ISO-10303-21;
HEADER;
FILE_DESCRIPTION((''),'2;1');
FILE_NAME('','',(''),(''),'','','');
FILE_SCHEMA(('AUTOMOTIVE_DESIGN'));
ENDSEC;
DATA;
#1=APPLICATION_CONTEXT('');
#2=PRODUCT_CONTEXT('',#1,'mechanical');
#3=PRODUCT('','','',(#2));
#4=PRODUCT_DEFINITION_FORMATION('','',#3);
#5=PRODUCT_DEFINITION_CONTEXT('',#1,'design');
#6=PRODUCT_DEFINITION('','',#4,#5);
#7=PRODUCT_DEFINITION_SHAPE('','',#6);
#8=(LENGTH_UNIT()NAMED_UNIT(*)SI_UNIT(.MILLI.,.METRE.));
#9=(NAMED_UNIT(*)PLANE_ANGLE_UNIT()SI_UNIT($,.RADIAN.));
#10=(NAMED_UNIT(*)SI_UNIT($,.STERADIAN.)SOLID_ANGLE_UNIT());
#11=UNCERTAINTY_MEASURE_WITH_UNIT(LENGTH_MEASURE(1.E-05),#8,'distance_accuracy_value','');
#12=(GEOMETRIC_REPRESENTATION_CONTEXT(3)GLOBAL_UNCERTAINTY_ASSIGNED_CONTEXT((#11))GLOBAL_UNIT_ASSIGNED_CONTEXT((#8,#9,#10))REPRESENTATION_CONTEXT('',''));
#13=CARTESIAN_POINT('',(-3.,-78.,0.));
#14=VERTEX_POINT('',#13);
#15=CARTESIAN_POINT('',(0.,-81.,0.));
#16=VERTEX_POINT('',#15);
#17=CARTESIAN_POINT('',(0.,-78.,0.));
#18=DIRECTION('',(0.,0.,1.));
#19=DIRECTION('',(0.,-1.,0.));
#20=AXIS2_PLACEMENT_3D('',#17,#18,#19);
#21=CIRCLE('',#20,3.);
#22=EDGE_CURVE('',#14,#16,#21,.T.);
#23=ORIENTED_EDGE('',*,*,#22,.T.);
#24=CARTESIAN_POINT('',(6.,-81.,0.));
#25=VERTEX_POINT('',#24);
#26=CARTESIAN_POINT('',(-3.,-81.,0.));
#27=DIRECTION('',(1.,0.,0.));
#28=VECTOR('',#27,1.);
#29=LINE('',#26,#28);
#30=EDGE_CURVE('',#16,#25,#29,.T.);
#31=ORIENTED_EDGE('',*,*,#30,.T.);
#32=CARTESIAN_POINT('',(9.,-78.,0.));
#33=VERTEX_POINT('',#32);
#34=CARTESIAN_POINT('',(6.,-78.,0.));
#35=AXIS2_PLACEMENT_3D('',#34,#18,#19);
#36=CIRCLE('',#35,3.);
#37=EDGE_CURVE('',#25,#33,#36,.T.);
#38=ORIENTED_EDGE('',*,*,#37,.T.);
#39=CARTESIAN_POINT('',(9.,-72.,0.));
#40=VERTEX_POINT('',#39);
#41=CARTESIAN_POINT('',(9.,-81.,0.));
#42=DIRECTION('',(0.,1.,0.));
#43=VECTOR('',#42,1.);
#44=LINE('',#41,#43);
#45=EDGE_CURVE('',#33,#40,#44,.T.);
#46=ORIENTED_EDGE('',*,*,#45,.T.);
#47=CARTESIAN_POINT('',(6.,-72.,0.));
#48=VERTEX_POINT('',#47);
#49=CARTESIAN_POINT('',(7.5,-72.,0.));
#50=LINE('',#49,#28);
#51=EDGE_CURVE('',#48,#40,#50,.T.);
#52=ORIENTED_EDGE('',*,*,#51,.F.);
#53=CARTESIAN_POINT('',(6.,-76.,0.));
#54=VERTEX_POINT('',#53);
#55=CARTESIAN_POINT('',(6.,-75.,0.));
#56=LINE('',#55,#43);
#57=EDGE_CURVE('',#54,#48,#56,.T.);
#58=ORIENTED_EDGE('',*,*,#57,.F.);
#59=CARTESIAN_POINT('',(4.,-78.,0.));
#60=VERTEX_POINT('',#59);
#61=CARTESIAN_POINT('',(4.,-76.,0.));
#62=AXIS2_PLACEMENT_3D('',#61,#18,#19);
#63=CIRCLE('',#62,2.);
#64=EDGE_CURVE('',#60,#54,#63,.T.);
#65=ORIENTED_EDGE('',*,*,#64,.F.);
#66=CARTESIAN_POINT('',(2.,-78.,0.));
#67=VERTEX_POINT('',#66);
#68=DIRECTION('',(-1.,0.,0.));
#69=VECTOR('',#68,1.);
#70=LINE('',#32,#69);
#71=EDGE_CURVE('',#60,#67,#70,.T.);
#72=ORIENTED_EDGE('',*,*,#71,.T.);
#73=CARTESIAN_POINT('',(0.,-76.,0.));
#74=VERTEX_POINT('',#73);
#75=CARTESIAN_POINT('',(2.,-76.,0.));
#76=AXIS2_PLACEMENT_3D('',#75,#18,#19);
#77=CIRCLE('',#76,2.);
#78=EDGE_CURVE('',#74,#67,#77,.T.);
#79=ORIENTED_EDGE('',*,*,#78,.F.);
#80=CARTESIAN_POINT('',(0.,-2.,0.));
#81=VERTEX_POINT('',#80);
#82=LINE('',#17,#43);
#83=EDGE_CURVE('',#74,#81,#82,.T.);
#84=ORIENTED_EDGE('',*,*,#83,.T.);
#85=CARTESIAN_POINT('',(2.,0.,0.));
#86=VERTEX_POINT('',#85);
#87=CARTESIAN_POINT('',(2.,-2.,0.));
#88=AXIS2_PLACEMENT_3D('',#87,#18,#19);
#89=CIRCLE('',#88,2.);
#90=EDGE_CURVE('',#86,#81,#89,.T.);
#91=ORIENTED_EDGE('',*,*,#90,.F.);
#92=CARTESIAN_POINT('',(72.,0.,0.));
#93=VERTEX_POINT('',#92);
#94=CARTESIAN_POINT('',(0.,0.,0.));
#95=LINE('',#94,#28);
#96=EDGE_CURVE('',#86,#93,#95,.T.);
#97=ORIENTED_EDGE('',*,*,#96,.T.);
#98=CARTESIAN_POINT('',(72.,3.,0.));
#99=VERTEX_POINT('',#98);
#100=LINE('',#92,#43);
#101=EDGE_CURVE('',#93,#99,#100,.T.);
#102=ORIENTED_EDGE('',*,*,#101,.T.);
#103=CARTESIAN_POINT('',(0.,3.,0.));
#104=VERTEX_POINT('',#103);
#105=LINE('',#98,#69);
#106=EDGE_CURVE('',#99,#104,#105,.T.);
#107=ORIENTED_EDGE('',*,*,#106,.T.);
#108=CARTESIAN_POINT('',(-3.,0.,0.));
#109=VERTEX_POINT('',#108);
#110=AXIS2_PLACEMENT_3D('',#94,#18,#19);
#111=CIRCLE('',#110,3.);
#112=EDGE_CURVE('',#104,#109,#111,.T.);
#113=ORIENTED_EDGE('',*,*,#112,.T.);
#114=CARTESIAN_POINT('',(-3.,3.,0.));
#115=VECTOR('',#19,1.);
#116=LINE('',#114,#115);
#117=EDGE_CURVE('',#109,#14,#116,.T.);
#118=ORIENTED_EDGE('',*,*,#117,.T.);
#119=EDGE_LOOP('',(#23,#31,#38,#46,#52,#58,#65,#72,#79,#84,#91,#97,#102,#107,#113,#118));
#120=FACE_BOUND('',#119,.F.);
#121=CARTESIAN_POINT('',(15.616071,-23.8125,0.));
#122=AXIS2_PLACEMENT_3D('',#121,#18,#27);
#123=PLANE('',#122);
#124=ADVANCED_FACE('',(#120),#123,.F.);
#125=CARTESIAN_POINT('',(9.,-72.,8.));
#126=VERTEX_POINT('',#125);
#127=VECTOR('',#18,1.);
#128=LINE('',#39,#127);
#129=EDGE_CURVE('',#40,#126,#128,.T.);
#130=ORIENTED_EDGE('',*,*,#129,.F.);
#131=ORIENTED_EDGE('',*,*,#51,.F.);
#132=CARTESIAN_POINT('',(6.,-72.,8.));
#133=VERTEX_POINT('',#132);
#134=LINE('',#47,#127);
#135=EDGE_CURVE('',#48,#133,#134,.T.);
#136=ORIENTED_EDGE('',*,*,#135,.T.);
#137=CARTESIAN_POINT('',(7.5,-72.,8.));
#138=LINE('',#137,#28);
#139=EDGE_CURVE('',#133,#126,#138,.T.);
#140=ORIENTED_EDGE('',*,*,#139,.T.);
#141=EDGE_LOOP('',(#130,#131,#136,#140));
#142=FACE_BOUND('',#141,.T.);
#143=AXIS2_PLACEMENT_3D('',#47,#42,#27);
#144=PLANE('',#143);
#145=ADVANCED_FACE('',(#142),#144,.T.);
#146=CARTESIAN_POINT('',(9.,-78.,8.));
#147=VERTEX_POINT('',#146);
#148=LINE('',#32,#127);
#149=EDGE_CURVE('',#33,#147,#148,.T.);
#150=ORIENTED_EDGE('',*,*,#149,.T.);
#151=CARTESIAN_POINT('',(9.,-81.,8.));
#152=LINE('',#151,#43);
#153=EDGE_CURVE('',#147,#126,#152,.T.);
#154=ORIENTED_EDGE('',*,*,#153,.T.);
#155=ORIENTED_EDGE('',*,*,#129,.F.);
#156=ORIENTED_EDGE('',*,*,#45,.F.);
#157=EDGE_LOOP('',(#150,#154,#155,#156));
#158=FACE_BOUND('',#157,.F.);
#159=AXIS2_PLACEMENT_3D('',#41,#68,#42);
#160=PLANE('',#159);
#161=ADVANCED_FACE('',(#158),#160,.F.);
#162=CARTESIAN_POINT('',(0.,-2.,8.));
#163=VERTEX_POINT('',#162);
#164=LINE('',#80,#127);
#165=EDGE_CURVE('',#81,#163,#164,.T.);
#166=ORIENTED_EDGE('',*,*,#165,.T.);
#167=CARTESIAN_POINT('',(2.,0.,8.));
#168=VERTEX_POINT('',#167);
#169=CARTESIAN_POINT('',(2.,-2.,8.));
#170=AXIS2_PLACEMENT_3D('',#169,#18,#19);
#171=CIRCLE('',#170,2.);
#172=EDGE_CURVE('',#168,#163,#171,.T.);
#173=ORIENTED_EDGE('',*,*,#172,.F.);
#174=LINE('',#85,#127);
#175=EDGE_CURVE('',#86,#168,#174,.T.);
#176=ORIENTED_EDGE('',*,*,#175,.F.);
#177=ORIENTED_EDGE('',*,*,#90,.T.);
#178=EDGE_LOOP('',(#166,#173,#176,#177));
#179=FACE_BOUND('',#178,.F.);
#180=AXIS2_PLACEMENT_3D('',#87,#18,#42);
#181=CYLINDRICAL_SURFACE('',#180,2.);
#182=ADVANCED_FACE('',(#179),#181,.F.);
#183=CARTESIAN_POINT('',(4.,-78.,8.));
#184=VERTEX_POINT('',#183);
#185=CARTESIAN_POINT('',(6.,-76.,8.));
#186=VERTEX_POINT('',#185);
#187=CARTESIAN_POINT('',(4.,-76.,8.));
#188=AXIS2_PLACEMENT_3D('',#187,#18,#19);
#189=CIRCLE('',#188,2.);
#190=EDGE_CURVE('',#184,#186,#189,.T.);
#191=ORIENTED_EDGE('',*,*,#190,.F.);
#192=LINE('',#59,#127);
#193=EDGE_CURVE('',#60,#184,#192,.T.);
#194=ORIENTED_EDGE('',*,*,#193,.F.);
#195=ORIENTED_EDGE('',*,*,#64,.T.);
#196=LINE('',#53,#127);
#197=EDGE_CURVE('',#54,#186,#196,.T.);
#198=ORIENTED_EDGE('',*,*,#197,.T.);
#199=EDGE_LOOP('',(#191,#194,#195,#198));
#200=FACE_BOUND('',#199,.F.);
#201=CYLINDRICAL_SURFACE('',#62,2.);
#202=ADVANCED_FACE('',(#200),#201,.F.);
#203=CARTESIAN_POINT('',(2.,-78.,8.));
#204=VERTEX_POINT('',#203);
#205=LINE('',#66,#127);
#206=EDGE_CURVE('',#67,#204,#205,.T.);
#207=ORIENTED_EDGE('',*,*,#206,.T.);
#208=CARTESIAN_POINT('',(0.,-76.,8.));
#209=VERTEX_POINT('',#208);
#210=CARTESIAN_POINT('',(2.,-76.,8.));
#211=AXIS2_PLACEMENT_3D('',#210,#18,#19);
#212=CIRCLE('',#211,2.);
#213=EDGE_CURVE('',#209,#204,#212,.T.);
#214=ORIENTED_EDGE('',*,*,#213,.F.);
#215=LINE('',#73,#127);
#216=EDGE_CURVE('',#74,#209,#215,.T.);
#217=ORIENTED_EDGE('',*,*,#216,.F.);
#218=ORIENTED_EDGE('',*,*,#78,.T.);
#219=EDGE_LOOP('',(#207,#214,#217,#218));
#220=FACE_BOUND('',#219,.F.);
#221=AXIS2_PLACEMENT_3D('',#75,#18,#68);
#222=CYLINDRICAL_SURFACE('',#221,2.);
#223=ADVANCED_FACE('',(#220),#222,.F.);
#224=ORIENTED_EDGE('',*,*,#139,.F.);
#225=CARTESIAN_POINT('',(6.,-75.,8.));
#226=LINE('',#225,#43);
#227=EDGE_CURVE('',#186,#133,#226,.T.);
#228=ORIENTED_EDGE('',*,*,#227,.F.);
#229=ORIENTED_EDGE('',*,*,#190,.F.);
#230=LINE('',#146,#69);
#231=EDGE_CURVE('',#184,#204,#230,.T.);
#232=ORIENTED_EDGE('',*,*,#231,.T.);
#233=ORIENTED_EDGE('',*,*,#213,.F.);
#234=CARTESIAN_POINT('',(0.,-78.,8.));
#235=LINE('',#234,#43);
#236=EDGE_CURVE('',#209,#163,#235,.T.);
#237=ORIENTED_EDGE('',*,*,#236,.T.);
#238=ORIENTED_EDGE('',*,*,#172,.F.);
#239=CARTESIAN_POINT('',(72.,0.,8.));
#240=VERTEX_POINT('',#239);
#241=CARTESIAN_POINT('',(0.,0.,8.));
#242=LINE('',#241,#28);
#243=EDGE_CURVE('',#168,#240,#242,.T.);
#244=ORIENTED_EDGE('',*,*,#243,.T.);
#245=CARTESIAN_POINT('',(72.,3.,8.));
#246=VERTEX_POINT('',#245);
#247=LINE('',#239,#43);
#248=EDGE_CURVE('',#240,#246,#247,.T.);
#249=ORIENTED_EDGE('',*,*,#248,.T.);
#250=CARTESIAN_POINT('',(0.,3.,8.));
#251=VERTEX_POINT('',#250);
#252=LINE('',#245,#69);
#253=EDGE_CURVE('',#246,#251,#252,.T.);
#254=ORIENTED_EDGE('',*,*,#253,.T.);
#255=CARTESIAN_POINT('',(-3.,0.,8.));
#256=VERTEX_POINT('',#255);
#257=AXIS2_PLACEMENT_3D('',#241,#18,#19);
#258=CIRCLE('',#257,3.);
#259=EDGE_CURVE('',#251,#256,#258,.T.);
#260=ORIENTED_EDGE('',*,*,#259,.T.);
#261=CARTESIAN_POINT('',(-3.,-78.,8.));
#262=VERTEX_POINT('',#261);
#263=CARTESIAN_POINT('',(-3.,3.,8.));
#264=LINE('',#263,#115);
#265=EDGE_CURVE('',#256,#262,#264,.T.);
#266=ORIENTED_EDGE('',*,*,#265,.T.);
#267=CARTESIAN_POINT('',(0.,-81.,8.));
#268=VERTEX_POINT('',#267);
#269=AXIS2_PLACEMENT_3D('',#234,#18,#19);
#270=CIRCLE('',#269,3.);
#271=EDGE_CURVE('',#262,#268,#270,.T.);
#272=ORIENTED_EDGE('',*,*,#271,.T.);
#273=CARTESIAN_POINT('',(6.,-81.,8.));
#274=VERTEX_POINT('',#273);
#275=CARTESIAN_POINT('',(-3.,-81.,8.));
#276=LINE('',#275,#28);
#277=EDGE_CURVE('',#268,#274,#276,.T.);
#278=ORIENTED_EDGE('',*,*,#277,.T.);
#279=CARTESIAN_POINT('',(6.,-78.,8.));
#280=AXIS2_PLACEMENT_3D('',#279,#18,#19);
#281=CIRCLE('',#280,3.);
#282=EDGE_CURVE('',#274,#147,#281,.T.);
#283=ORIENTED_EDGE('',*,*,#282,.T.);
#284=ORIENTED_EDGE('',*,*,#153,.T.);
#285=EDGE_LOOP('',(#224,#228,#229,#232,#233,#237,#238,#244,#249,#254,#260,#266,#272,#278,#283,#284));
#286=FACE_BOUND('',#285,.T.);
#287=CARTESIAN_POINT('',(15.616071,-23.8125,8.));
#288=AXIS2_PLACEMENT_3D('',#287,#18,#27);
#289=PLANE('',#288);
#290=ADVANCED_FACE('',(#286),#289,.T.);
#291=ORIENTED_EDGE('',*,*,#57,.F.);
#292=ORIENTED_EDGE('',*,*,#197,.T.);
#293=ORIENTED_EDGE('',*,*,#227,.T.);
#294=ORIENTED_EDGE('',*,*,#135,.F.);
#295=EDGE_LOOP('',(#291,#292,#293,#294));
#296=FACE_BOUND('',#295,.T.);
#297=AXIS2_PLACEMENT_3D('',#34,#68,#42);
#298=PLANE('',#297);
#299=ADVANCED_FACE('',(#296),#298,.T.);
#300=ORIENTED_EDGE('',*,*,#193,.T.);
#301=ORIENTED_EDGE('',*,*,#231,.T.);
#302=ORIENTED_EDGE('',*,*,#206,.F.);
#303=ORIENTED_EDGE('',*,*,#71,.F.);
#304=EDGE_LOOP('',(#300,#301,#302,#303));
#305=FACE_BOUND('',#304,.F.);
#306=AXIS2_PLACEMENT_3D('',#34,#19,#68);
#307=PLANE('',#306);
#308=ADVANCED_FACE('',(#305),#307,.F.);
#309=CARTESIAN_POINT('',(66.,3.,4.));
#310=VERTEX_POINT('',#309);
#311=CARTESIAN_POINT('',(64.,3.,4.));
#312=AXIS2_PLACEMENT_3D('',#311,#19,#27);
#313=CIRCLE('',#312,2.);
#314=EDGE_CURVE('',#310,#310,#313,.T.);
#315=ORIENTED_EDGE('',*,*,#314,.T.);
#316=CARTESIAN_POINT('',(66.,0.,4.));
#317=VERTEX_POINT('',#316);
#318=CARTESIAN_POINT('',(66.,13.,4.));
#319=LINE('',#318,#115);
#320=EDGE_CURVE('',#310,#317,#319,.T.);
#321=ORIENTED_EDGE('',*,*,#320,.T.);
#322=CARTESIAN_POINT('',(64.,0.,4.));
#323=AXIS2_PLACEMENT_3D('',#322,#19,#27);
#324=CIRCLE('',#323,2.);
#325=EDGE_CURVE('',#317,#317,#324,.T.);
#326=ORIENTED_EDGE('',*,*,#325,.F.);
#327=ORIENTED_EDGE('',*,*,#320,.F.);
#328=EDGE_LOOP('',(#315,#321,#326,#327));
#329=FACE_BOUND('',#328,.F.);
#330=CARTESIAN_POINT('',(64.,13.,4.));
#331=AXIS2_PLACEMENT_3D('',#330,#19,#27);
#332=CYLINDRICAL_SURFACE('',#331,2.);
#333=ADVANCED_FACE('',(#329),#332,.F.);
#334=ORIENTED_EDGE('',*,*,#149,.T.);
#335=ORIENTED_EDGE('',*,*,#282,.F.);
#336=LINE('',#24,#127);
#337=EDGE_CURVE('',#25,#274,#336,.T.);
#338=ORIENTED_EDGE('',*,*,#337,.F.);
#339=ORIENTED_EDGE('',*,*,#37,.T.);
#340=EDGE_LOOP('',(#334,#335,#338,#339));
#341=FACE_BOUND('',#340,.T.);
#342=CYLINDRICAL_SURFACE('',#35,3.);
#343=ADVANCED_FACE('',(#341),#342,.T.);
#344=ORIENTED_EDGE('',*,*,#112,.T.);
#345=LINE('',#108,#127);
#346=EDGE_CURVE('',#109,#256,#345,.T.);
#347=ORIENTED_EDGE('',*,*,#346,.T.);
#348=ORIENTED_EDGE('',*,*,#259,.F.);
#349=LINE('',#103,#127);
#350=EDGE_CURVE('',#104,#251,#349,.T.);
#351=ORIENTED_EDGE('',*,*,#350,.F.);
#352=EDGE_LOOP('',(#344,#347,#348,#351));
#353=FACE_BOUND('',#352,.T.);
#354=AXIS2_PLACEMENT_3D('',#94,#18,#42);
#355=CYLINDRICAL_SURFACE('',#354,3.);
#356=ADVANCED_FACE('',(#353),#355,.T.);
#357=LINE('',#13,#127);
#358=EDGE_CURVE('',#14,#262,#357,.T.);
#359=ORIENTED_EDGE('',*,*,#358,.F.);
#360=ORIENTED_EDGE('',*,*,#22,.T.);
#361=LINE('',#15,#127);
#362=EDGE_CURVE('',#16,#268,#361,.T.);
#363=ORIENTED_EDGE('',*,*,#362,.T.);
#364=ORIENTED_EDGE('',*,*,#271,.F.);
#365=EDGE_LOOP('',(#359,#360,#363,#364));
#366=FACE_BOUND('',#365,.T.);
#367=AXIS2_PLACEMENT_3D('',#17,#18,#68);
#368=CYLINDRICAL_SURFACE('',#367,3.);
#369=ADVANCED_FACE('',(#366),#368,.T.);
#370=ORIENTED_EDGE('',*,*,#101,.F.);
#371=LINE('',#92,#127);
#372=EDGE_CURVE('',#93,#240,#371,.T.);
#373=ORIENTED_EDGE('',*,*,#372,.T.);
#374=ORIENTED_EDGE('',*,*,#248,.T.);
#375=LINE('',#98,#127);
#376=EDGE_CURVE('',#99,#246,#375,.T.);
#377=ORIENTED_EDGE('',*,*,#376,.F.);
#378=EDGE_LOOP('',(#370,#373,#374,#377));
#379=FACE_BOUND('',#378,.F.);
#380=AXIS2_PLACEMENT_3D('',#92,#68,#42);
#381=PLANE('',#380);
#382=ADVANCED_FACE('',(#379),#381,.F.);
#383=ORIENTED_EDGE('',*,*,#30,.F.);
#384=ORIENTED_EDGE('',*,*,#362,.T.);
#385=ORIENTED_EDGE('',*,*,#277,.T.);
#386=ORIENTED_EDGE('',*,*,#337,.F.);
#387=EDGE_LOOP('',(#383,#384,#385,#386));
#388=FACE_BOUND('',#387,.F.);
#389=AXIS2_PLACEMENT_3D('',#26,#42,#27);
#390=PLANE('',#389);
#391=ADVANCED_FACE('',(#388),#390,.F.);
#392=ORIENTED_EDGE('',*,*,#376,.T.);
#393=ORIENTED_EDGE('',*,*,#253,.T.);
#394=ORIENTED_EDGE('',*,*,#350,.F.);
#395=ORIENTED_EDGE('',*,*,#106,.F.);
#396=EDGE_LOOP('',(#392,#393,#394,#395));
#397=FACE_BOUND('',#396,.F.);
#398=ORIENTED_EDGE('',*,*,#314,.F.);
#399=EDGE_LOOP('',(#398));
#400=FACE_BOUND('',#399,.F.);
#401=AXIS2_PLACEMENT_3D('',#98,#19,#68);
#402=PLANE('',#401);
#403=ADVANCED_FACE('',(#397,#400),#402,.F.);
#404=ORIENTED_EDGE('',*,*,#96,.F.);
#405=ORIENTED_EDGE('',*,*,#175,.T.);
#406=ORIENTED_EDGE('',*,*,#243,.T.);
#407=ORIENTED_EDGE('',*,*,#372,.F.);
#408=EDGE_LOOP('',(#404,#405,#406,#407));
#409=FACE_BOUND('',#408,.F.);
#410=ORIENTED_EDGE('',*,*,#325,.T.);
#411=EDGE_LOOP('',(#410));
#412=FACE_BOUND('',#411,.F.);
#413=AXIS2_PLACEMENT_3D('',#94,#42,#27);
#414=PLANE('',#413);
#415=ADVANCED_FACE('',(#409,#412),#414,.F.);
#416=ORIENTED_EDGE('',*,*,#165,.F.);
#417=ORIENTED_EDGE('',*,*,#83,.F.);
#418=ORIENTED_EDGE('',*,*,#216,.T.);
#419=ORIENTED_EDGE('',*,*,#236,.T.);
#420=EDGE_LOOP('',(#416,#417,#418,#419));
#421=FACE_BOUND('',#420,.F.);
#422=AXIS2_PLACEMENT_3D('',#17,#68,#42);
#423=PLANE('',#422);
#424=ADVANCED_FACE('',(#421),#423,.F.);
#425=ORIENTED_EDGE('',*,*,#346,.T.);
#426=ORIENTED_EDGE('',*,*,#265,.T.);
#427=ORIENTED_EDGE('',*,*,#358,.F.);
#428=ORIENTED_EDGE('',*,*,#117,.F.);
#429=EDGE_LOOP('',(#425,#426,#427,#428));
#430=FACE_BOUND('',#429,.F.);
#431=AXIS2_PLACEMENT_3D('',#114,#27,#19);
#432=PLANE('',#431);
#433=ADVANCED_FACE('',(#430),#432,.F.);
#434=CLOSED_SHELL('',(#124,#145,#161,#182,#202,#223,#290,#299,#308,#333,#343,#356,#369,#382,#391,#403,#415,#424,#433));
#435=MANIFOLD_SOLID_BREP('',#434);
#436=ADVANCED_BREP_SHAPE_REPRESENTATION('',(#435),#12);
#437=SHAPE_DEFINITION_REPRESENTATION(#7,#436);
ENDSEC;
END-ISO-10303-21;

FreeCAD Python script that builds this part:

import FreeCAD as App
import Part
import Sketcher

V = App.Vector


def edges_at(feature, points):
    """Names of the edges that pass closest to the given points."""
    edges = feature.Shape.Edges
    near = lambda p: min(range(len(edges)), key=lambda i: edges[i].distToShape(Part.Vertex(*p))[0])
    return sorted({f"Edge{near(p) + 1}" for p in points})


def add_polygon(sketch, points):
    """Adds a closed chain of lines whose ends are joined by coincident constraints."""
    first, n = sketch.GeometryCount, len(points)
    for a, b in zip(points, points[1:] + points[:1]):
        sketch.addGeometry(Part.LineSegment(App.Vector(*a, 0), App.Vector(*b, 0)), False)
    for i in range(n):
        sketch.addConstraint(Sketcher.Constraint("Coincident", first + i, 2, first + (i + 1) % n, 1))

doc = App.newDocument("Part")
body = doc.addObject("PartDesign::Body", "Body")

sketch1 = body.newObject("Sketcher::SketchObject", "Sketch")
sketch1.AttachmentSupport = (doc.getObject("XY_Plane"), [""])
sketch1.MapMode = "FlatFace"
add_polygon(sketch1, [(0, -78), (0, 0), (72, 0), (72, 3), (-3, 3), (-3, -81), (9, -81), (9, -72), (6, -72), (6, -78)])
sketch1.addConstraint([
    Sketcher.Constraint("Vertical", 0),
    Sketcher.Constraint("Horizontal", 1),
    Sketcher.Constraint("Vertical", 2),
    Sketcher.Constraint("Horizontal", 3),
    Sketcher.Constraint("Vertical", 4),
    Sketcher.Constraint("Horizontal", 5),
    Sketcher.Constraint("Vertical", 6),
    Sketcher.Constraint("Horizontal", 7),
    Sketcher.Constraint("Vertical", 8),
    Sketcher.Constraint("Horizontal", 9),
    Sketcher.Constraint("Coincident", 0, 2, -1, 1),
    Sketcher.Constraint("Equal", 7, 2),
    Sketcher.Constraint("Equal", 9, 8),
    Sketcher.Constraint("DistanceX", 1, 1, 1, 2, 72.0),
    Sketcher.Constraint("DistanceX", 3, 2, 3, 1, 75.0),
    Sketcher.Constraint("DistanceX", 5, 1, 5, 2, 12.0),
    Sketcher.Constraint("DistanceX", 7, 2, 7, 1, 3.0),
    Sketcher.Constraint("DistanceY", 0, 1, 0, 2, 78.0),
    Sketcher.Constraint("DistanceY", 4, 2, 4, 1, 84.0),
])
pad1 = body.newObject("PartDesign::Pad", "Pad")
pad1.Profile = sketch1
pad1.Length = 8

sketch2 = body.newObject("Sketcher::SketchObject", "Sketch001")
sketch2.AttachmentSupport = (doc.getObject("XZ_Plane"), [""])
sketch2.MapMode = "FlatFace"
sketch2.AttachmentOffset = App.Placement(V(0, 0, -3), App.Rotation())
sketch2.addGeometry(Part.Circle(V(64, 4, 0), V(0, 0, 1), 2), False)
sketch2.addConstraint([
    Sketcher.Constraint("Diameter", 0, 4.0),
    Sketcher.Constraint("DistanceX", -1, 1, 0, 3, 64.0),
    Sketcher.Constraint("DistanceY", -1, 1, 0, 3, 4.0),
])
doc.recompute()
hole = body.newObject("PartDesign::Hole", "Hole")
hole.Profile = sketch2
hole.ThreadType = "None"
hole.Diameter = 4
hole.DepthType = "Dimension"
hole.Depth = 10
hole.DrillPoint = "Flat"
hole.Reversed = True
doc.recompute()

fillet = body.newObject("PartDesign::Fillet", "Fillet")
fillet.Base = (hole, edges_at(hole, [(-3, -81, 4), (-3, 3, 4), (9, -81, 4)]))
fillet.Radius = 3
doc.recompute()

fillet2 = body.newObject("PartDesign::Fillet", "Fillet001")
fillet2.Base = (fillet, edges_at(fillet, [(6, -78, 4), (0, -78, 4), (0, 0, 4)]))
fillet2.Radius = 2

doc.recompute()
